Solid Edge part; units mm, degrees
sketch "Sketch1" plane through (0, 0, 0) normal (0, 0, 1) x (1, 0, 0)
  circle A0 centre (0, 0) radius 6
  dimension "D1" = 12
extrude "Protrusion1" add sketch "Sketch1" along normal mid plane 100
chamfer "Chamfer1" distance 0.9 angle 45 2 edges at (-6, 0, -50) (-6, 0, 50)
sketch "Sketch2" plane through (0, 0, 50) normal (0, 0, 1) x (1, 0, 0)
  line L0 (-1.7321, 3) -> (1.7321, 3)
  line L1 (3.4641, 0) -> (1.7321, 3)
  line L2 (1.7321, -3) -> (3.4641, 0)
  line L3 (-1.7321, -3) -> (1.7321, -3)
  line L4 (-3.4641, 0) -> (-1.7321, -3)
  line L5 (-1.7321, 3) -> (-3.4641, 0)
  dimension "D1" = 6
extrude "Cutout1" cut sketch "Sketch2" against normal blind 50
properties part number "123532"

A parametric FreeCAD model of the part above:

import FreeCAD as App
import Part
import Sketcher
Q = App.Units.Quantity


def edges_at(feature, points):
    """Names of the edges that pass closest to the given points."""
    edges = feature.Shape.Edges
    near = lambda p: min(range(len(edges)), key=lambda i: edges[i].distToShape(Part.Vertex(*p))[0])
    return sorted({f"Edge{near(p) + 1}" for p in points})

doc = App.newDocument("Part")
body = doc.addObject("PartDesign::Body", "Body")

# Sketch on XY plane
sketch1 = body.newObject("Sketcher::SketchObject", "Sketch")
sketch1.AttachmentSupport = (doc.getObject("XY_Plane"), [""])
sketch1.MapMode = "FlatFace"
sketch1.addGeometry(Part.Circle(App.Vector(0, 0, 0), App.Vector(0, 0, 1), 6), False)
sketch1.addConstraint([
    Sketcher.Constraint("Coincident", 0, 3, -1, 1),
    Sketcher.Constraint("Diameter", 0, Q("12 mm")),
])
pad1 = body.newObject("PartDesign::Pad", "Pad")
pad1.Profile = sketch1
pad1.Length = 100
pad1.Midplane = True
doc.recompute()

chamfer = body.newObject("PartDesign::Chamfer", "Chamfer")
chamfer.Base = (pad1, edges_at(pad1, [(-6, 0, -50), (-6, 0, 50)]))
chamfer.Size = 0.9

# Sketch on XY plane
sketch2 = body.newObject("Sketcher::SketchObject", "Sketch001")
sketch2.AttachmentSupport = (doc.getObject("XY_Plane"), [""])
sketch2.MapMode = "FlatFace"
sketch2.AttachmentOffset = App.Placement(App.Vector(0, 0, 50), App.Rotation())
sketch2.addGeometry([
    Part.LineSegment(App.Vector(1.7321, 3, 0), App.Vector(-1.7321, 3, 0)),  # 0
    Part.LineSegment(App.Vector(-1.7321, 3, 0), App.Vector(-3.4641, 0, 0)),  # 1
    Part.LineSegment(App.Vector(-3.4641, 0, 0), App.Vector(-1.7321, -3, 0)),  # 2
    Part.LineSegment(App.Vector(-1.7321, -3, 0), App.Vector(1.7321, -3, 0)),  # 3
    Part.LineSegment(App.Vector(1.7321, -3, 0), App.Vector(3.4641, 0, 0)),  # 4
    Part.LineSegment(App.Vector(3.4641, 0, 0), App.Vector(1.7321, 3, 0)),  # 5
], False)
sketch2.addConstraint([
    Sketcher.Constraint("Coincident", 0, 2, 1, 1),
    Sketcher.Constraint("Coincident", 1, 2, 2, 1),
    Sketcher.Constraint("Coincident", 2, 2, 3, 1),
    Sketcher.Constraint("Coincident", 3, 2, 4, 1),
    Sketcher.Constraint("Coincident", 4, 2, 5, 1),
    Sketcher.Constraint("Coincident", 5, 2, 0, 1),
    Sketcher.Constraint("Horizontal", 0),
    Sketcher.Constraint("Horizontal", 3),
    Sketcher.Constraint("Symmetric", 0, 2, 3, 2, -1, 1),
    Sketcher.Constraint("Symmetric", 1, 2, 4, 2, -1, 1),
    Sketcher.Constraint("PointOnObject", 1, 2, -1),
    Sketcher.Constraint("Parallel", 2, 5),
    Sketcher.Constraint("Vertical", 0, 2, 2, 2),
    Sketcher.Constraint("Angle", 1, Q("-119.9993 deg")),
    Sketcher.Constraint("DistanceY", -1, 1, 0, 2, Q("3 mm")),
    Sketcher.Constraint("DistanceX", 0, 2, 0, 1, Q("3.4642 mm")),
])
pocket1 = body.newObject("PartDesign::Pocket", "Pocket")
pocket1.Profile = sketch2
pocket1.Length = 50

doc.recompute()
